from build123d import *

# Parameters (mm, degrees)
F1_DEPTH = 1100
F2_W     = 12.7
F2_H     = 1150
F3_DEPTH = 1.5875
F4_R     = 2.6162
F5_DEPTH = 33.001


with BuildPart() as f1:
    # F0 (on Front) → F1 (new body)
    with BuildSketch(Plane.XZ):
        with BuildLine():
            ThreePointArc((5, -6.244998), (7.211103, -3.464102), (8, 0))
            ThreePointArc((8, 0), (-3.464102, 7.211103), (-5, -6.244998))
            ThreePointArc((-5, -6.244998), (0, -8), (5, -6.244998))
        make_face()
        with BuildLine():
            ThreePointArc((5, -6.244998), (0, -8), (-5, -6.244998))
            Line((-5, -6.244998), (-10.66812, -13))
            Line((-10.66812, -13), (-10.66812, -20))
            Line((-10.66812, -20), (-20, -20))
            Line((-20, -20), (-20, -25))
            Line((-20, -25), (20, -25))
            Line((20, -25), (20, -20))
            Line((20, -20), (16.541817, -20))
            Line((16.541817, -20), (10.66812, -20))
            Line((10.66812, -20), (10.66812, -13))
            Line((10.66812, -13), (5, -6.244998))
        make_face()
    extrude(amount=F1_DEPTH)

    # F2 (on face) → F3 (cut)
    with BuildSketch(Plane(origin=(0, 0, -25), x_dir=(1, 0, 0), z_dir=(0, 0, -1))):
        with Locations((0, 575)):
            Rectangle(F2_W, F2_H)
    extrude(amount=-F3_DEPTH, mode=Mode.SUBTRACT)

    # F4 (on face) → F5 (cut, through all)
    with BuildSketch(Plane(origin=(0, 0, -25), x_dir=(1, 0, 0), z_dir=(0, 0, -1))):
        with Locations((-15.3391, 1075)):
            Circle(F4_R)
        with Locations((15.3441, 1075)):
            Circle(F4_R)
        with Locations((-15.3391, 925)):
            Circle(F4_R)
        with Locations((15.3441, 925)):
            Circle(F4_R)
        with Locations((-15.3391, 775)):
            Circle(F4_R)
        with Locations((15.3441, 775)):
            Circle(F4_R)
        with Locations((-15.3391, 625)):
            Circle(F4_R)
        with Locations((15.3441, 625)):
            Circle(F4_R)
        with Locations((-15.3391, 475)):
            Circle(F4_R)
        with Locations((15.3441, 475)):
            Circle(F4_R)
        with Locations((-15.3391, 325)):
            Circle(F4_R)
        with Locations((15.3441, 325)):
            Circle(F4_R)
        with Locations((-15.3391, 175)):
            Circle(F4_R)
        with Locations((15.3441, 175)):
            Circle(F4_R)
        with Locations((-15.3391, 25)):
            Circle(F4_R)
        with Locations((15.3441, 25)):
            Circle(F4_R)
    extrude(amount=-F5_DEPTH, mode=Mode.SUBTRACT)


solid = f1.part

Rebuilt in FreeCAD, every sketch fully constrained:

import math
import FreeCAD as App
import Part
import Sketcher
from FreeCAD import Vector
Q = App.Units.Quantity

doc = App.newDocument("Part")
body = doc.addObject("PartDesign::Body", "Body")

# Sketch on XZ plane
sketch1 = body.newObject("Sketcher::SketchObject", "Sketch")
sketch1.AttachmentSupport = (doc.getObject("XZ_Plane"), [""])
sketch1.MapMode = "FlatFace"
sketch1.addGeometry(Part.ArcOfCircle(Part.Circle(Vector(0, 0, 0), Vector(0, 0, 1), 8), math.radians(-51), math.radians(0)), False)
sketch1.addGeometry(Part.ArcOfCircle(Part.Circle(Vector(0, 0, 0), Vector(0, 0, 1), 8), math.radians(0), math.radians(231)), False)
sketch1.addGeometry(Part.LineSegment(Vector(-5, -6, 0), Vector(-11, -13, 0)), False)
sketch1.addGeometry(Part.LineSegment(Vector(-11, -13, 0), Vector(-11, -20, 0)), False)
sketch1.addGeometry(Part.LineSegment(Vector(-11, -20, 0), Vector(-20, -20, 0)), False)
sketch1.addGeometry(Part.LineSegment(Vector(-20, -20, 0), Vector(-20, -25, 0)), False)
sketch1.addGeometry(Part.LineSegment(Vector(-20, -25, 0), Vector(20, -25, 0)), False)
sketch1.addGeometry(Part.LineSegment(Vector(20, -25, 0), Vector(20, -20, 0)), False)
sketch1.addGeometry(Part.LineSegment(Vector(20, -20, 0), Vector(11, -20, 0)), False)
sketch1.addGeometry(Part.LineSegment(Vector(11, -20, 0), Vector(11, -13, 0)), False)
sketch1.addGeometry(Part.LineSegment(Vector(11, -13, 0), Vector(5, -6, 0)), False)
sketch1.addConstraint(Sketcher.Constraint("Tangent", 0, 2, 1, 1))
sketch1.addConstraint(Sketcher.Constraint("Coincident", 1, 2, 2, 1))
sketch1.addConstraint(Sketcher.Constraint("Coincident", 2, 2, 3, 1))
sketch1.addConstraint(Sketcher.Constraint("Coincident", 3, 2, 4, 1))
sketch1.addConstraint(Sketcher.Constraint("Coincident", 4, 2, 5, 1))
sketch1.addConstraint(Sketcher.Constraint("Coincident", 5, 2, 6, 1))
sketch1.addConstraint(Sketcher.Constraint("Coincident", 6, 2, 7, 1))
sketch1.addConstraint(Sketcher.Constraint("Coincident", 7, 2, 8, 1))
sketch1.addConstraint(Sketcher.Constraint("Coincident", 8, 2, 9, 1))
sketch1.addConstraint(Sketcher.Constraint("Coincident", 9, 2, 10, 1))
sketch1.addConstraint(Sketcher.Constraint("Coincident", 10, 2, 0, 1))
sketch1.addConstraint(Sketcher.Constraint("Vertical", 3))
sketch1.addConstraint(Sketcher.Constraint("Horizontal", 4))
sketch1.addConstraint(Sketcher.Constraint("Vertical", 5))
sketch1.addConstraint(Sketcher.Constraint("Horizontal", 6))
sketch1.addConstraint(Sketcher.Constraint("Vertical", 7))
sketch1.addConstraint(Sketcher.Constraint("Horizontal", 8))
sketch1.addConstraint(Sketcher.Constraint("Vertical", 9))
sketch1.addConstraint(Sketcher.Constraint("Coincident", 0, 3, -1, 1))
sketch1.addConstraint(Sketcher.Constraint("Symmetric", 4, 2, 7, 2, -2))
sketch1.addConstraint(Sketcher.Constraint("Symmetric", 2, 2, 9, 2, -2))
sketch1.addConstraint(Sketcher.Constraint("Symmetric", 1, 2, 10, 2, -2))
sketch1.addConstraint(Sketcher.Constraint("PointOnObject", 0, 2, -1))
sketch1.addConstraint(Sketcher.Constraint("Radius", 1, 8.0))
sketch1.addConstraint(Sketcher.Constraint("DistanceX", 6, 1, 6, 2, 40.0))
sketch1.addConstraint(Sketcher.Constraint("DistanceY", 3, 2, 3, 1, 7.0))
sketch1.addConstraint(Sketcher.Constraint("DistanceY", 5, 2, 5, 1, 5.0))
sketch1.addConstraint(Sketcher.Constraint("Angle", 2, Q("-130.000002 deg")))
sketch1.addConstraint(Sketcher.Constraint("DistanceX", 1, 2, -1, 1, 5.0))
sketch1.addConstraint(Sketcher.Constraint("DistanceY", 2, 2, -1, 1, 13.0))
pad1 = body.newObject("PartDesign::Pad", "Pad")
pad1.Profile = sketch1
pad1.Length = 1100

# Sketch on XY plane
sketch2 = body.newObject("Sketcher::SketchObject", "Sketch001")
sketch2.AttachmentSupport = (doc.getObject("XY_Plane"), [""])
sketch2.MapMode = "FlatFace"
sketch2.AttachmentOffset = App.Placement(Vector(0, 0, -25), App.Rotation())
sketch2.addGeometry(Part.LineSegment(Vector(-6, -1150, 0), Vector(-6, 0, 0)), False)
sketch2.addGeometry(Part.LineSegment(Vector(-6, 0, 0), Vector(6, 0, 0)), False)
sketch2.addGeometry(Part.LineSegment(Vector(6, 0, 0), Vector(6, -1150, 0)), False)
sketch2.addGeometry(Part.LineSegment(Vector(6, -1150, 0), Vector(-6, -1150, 0)), False)
sketch2.addConstraint(Sketcher.Constraint("Coincident", 0, 2, 1, 1))
sketch2.addConstraint(Sketcher.Constraint("Coincident", 1, 2, 2, 1))
sketch2.addConstraint(Sketcher.Constraint("Coincident", 2, 2, 3, 1))
sketch2.addConstraint(Sketcher.Constraint("Coincident", 3, 2, 0, 1))
sketch2.addConstraint(Sketcher.Constraint("Vertical", 0))
sketch2.addConstraint(Sketcher.Constraint("Horizontal", 1))
sketch2.addConstraint(Sketcher.Constraint("Vertical", 2))
sketch2.addConstraint(Sketcher.Constraint("Horizontal", 3))
sketch2.addConstraint(Sketcher.Constraint("Symmetric", 0, 2, 1, 2, -1, 1))
sketch2.addConstraint(Sketcher.Constraint("DistanceY", 0, 1, 0, 2, 1150.0))
sketch2.addConstraint(Sketcher.Constraint("DistanceX", 1, 1, 1, 2, 12.7))
pocket1 = body.newObject("PartDesign::Pocket", "Pocket")
pocket1.Profile = sketch2
pocket1.Length = 1.5875
pocket1.Reversed = True

# Sketch on XY plane
sketch3 = body.newObject("Sketcher::SketchObject", "Sketch002")
sketch3.AttachmentSupport = (doc.getObject("XY_Plane"), [""])
sketch3.MapMode = "FlatFace"
sketch3.AttachmentOffset = App.Placement(Vector(0, 0, -25), App.Rotation())
sketch3.addGeometry(Part.Circle(Vector(-15.3, -1075, 0), Vector(0, 0, 1), 2.6), False)
sketch3.addGeometry(Part.Circle(Vector(15.3, -1075, 0), Vector(0, 0, 1), 2.6), False)
sketch3.addGeometry(Part.Circle(Vector(-15.3, -925, 0), Vector(0, 0, 1), 2.6), False)
sketch3.addGeometry(Part.Circle(Vector(15.3, -925, 0), Vector(0, 0, 1), 2.6), False)
sketch3.addGeometry(Part.Circle(Vector(-15.3, -775, 0), Vector(0, 0, 1), 2.6), False)
sketch3.addGeometry(Part.Circle(Vector(15.3, -775, 0), Vector(0, 0, 1), 2.6), False)
sketch3.addGeometry(Part.Circle(Vector(-15.3, -625, 0), Vector(0, 0, 1), 2.6), False)
sketch3.addGeometry(Part.Circle(Vector(15.3, -625, 0), Vector(0, 0, 1), 2.6), False)
sketch3.addGeometry(Part.Circle(Vector(-15.3, -475, 0), Vector(0, 0, 1), 2.6), False)
sketch3.addGeometry(Part.Circle(Vector(15.3, -475, 0), Vector(0, 0, 1), 2.6), False)
sketch3.addGeometry(Part.Circle(Vector(-15.3, -325, 0), Vector(0, 0, 1), 2.6), False)
sketch3.addGeometry(Part.Circle(Vector(15.3, -325, 0), Vector(0, 0, 1), 2.6), False)
sketch3.addGeometry(Part.Circle(Vector(-15.3, -175, 0), Vector(0, 0, 1), 2.6), False)
sketch3.addGeometry(Part.Circle(Vector(15.3, -175, 0), Vector(0, 0, 1), 2.6), False)
sketch3.addGeometry(Part.Circle(Vector(-15.3, -25, 0), Vector(0, 0, 1), 2.6), False)
sketch3.addGeometry(Part.Circle(Vector(15.3, -25, 0), Vector(0, 0, 1), 2.6), False)
sketch3.addConstraint(Sketcher.Constraint("Equal", 0, 1))
sketch3.addConstraint(Sketcher.Constraint("Equal", 1, 2))
sketch3.addConstraint(Sketcher.Constraint("Equal", 2, 3))
sketch3.addConstraint(Sketcher.Constraint("Equal", 3, 4))
sketch3.addConstraint(Sketcher.Constraint("Equal", 4, 5))
sketch3.addConstraint(Sketcher.Constraint("Equal", 5, 6))
sketch3.addConstraint(Sketcher.Constraint("Equal", 6, 7))
sketch3.addConstraint(Sketcher.Constraint("Equal", 7, 8))
sketch3.addConstraint(Sketcher.Constraint("Equal", 8, 9))
sketch3.addConstraint(Sketcher.Constraint("Equal", 9, 10))
sketch3.addConstraint(Sketcher.Constraint("Equal", 10, 11))
sketch3.addConstraint(Sketcher.Constraint("Equal", 11, 12))
sketch3.addConstraint(Sketcher.Constraint("Equal", 12, 13))
sketch3.addConstraint(Sketcher.Constraint("Equal", 13, 14))
sketch3.addConstraint(Sketcher.Constraint("Equal", 14, 15))
sketch3.addConstraint(Sketcher.Constraint("Horizontal", 0, 3, 1, 3))
sketch3.addConstraint(Sketcher.Constraint("Horizontal", 2, 3, 3, 3))
sketch3.addConstraint(Sketcher.Constraint("Horizontal", 4, 3, 5, 3))
sketch3.addConstraint(Sketcher.Constraint("Horizontal", 6, 3, 7, 3))
sketch3.addConstraint(Sketcher.Constraint("Horizontal", 8, 3, 9, 3))
sketch3.addConstraint(Sketcher.Constraint("Horizontal", 10, 3, 11, 3))
sketch3.addConstraint(Sketcher.Constraint("Horizontal", 12, 3, 13, 3))
sketch3.addConstraint(Sketcher.Constraint("Horizontal", 14, 3, 15, 3))
sketch3.addConstraint(Sketcher.Constraint("Vertical", 0, 3, 2, 3))
sketch3.addConstraint(Sketcher.Constraint("Vertical", 1, 3, 3, 3))
sketch3.addConstraint(Sketcher.Constraint("Vertical", 2, 3, 4, 3))
sketch3.addConstraint(Sketcher.Constraint("Vertical", 3, 3, 5, 3))
sketch3.addConstraint(Sketcher.Constraint("Vertical", 4, 3, 6, 3))
sketch3.addConstraint(Sketcher.Constraint("Vertical", 5, 3, 7, 3))
sketch3.addConstraint(Sketcher.Constraint("Vertical", 6, 3, 8, 3))
sketch3.addConstraint(Sketcher.Constraint("Vertical", 7, 3, 9, 3))
sketch3.addConstraint(Sketcher.Constraint("Vertical", 8, 3, 10, 3))
sketch3.addConstraint(Sketcher.Constraint("Vertical", 9, 3, 11, 3))
sketch3.addConstraint(Sketcher.Constraint("Vertical", 10, 3, 12, 3))
sketch3.addConstraint(Sketcher.Constraint("Vertical", 11, 3, 13, 3))
sketch3.addConstraint(Sketcher.Constraint("Vertical", 12, 3, 14, 3))
sketch3.addConstraint(Sketcher.Constraint("Vertical", 13, 3, 15, 3))
sketch3.addConstraint(Sketcher.Constraint("DistanceY", 0, 3, -1, 1, 1075.0))
sketch3.addConstraint(Sketcher.Constraint("DistanceY", 2, 3, -1, 1, 925.0))
sketch3.addConstraint(Sketcher.Constraint("DistanceY", 4, 3, -1, 1, 775.0))
sketch3.addConstraint(Sketcher.Constraint("DistanceY", 6, 3, -1, 1, 625.0))
sketch3.addConstraint(Sketcher.Constraint("DistanceY", 8, 3, -1, 1, 475.0))
sketch3.addConstraint(Sketcher.Constraint("DistanceY", 10, 3, -1, 1, 325.0))
sketch3.addConstraint(Sketcher.Constraint("DistanceY", 12, 3, -1, 1, 175.0))
sketch3.addConstraint(Sketcher.Constraint("DistanceY", 14, 3, -1, 1, 25.0))
sketch3.addConstraint(Sketcher.Constraint("Diameter", 0, 5.2324))
sketch3.addConstraint(Sketcher.Constraint("DistanceX", 0, 3, -1, 1, 15.3391))
sketch3.addConstraint(Sketcher.Constraint("DistanceX", -1, 1, 1, 3, 15.3441))
pocket2 = body.newObject("PartDesign::Pocket", "Pocket001")
pocket2.Profile = sketch3
pocket2.Type = "ThroughAll"
pocket2.Reversed = True

doc.recompute()
